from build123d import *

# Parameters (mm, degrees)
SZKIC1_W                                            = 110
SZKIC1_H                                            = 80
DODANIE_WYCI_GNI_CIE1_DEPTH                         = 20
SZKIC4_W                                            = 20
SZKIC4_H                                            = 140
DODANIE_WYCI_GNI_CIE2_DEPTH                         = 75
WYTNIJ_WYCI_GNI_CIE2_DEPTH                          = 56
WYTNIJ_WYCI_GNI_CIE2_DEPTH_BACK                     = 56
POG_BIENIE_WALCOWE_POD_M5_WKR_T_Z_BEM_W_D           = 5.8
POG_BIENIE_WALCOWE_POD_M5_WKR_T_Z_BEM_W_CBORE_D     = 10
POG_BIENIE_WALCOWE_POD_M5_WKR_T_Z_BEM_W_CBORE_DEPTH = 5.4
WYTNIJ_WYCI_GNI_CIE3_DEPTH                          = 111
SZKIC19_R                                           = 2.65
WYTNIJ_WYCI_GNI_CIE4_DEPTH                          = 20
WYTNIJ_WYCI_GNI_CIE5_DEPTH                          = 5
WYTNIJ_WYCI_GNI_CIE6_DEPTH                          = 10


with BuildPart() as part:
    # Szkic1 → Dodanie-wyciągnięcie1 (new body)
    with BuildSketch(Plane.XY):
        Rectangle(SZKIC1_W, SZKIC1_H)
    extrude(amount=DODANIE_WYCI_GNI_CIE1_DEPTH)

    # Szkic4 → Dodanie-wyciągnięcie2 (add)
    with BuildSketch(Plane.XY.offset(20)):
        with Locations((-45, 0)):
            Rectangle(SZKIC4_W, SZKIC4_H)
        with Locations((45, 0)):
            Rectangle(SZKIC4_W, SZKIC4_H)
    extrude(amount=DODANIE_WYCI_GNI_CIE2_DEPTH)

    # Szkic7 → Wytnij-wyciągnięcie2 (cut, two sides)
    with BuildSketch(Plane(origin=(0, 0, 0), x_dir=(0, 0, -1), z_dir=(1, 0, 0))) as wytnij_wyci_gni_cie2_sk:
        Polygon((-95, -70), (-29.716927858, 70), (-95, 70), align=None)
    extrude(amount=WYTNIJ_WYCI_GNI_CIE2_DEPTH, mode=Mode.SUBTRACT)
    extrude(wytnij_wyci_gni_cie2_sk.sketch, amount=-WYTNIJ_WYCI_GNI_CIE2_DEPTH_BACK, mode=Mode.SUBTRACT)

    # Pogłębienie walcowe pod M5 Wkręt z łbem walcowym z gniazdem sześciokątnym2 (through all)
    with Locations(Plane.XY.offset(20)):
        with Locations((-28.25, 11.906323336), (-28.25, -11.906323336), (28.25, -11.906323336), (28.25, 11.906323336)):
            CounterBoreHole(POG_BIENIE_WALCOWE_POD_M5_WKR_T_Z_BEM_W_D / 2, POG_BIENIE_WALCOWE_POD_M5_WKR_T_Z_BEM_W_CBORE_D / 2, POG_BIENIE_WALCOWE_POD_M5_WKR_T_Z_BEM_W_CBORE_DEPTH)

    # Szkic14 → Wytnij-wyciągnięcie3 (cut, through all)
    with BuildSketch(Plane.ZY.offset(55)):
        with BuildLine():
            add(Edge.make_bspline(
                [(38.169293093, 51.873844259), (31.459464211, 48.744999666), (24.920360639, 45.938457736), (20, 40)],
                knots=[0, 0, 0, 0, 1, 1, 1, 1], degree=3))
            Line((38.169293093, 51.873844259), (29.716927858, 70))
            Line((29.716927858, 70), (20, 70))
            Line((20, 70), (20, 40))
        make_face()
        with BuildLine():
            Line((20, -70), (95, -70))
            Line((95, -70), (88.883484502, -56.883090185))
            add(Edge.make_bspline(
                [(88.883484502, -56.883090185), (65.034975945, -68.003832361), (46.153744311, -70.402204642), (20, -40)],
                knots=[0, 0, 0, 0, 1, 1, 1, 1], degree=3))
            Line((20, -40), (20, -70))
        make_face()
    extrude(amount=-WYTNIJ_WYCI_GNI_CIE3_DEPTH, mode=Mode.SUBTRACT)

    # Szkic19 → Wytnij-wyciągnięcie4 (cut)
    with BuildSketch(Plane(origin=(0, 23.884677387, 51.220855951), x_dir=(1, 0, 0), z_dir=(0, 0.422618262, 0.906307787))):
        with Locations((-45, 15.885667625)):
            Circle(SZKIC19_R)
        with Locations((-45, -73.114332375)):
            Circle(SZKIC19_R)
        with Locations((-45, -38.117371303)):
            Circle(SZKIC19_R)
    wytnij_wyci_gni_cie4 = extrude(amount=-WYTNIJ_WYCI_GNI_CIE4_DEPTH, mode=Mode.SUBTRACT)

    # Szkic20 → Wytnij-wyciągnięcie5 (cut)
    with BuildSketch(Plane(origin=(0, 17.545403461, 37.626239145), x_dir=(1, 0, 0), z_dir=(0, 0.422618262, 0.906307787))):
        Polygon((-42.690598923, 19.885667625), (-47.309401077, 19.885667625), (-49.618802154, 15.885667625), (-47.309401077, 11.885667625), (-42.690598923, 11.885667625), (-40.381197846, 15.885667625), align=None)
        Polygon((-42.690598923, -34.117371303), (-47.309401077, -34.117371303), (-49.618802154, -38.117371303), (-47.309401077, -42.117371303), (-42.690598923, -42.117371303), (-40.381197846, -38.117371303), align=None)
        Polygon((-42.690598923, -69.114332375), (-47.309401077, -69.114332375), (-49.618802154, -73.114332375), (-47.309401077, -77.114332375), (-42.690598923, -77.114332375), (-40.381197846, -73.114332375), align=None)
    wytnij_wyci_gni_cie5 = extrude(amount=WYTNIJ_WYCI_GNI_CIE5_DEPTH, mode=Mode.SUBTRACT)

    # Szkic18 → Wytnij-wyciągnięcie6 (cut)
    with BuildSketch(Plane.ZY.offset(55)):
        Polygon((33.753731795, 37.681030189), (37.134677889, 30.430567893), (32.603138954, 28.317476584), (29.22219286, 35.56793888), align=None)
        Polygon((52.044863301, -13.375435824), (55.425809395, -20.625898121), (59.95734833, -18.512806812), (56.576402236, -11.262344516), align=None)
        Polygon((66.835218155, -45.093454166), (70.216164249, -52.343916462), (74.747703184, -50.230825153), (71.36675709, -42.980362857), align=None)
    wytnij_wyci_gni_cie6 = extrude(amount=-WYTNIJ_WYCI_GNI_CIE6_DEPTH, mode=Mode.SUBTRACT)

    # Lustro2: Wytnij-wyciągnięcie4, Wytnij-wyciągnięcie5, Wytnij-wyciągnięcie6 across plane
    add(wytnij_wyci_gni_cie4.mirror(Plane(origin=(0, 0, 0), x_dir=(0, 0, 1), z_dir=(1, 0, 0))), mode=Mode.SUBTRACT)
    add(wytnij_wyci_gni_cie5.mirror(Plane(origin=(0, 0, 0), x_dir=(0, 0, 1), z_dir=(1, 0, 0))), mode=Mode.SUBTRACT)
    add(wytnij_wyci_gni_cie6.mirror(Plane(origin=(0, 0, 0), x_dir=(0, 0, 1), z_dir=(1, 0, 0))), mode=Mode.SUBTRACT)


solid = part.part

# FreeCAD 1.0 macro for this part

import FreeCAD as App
import Part
import Sketcher
from FreeCAD import Vector
Q = App.Units.Quantity


def add_polygon(sketch, points):
    """Adds a closed chain of lines whose ends are joined by coincident constraints."""
    first, n = sketch.GeometryCount, len(points)
    for a, b in zip(points, points[1:] + points[:1]):
        sketch.addGeometry(Part.LineSegment(App.Vector(*a, 0), App.Vector(*b, 0)), False)
    for i in range(n):
        sketch.addConstraint(Sketcher.Constraint("Coincident", first + i, 2, first + (i + 1) % n, 1))

doc = App.newDocument("Part")
params = doc.addObject("Spreadsheet::Sheet", "Params")
for row, (alias, value) in enumerate([
    ("sketch1_width", "110 mm"),
    ("sketch1_height", "80 mm"),
    ("pad1_length", "20 mm"),
    ("sketch2_width", "20 mm"),
    ("sketch2_height", "140 mm"),
    ("pad2_length", "75 mm"),
    ("sketch3_width", "140 mm"),
    ("sketch4_diameter", "5.8 mm"),
    ("hole_diameter", "5.8 mm"),
    ("hole_cbore_diameter", "10 mm"),
    ("hole_cbore_depth", "5.4 mm"),
    ("sketch5_width", "30 mm"),
    ("sketch5_width2", "30 mm"),
    ("sketch5_height", "75 mm"),
    ("sketch5_length", "20 mm"),
    ("sketch6_diameter", "5.3 mm"),
    ("pocket3_length", "20 mm"),
    ("pocket4_length", "5 mm"),
    ("sketch8_length", "8 mm"),
    ("sketch8_length2", "5 mm"),
    ("pocket5_length", "10 mm"),
], start=1):
    params.set(f"A{row}", alias)
    params.set(f"B{row}", "=" + value)
    params.setAlias(f"B{row}", alias)

body = doc.addObject("PartDesign::Body", "Body")

sketch1 = doc.addObject("Sketcher::SketchObject", "Sketch")
body.addObject(sketch1)
sketch1.AttachmentSupport = (doc.XY_Plane, [""])
sketch1.MapMode = "FlatFace"
add_polygon(sketch1, [(-55, 40), (-55, -40), (55, -40), (55, 40)])
sketch1.addConstraint(Sketcher.Constraint("Vertical", 0))
sketch1.addConstraint(Sketcher.Constraint("Horizontal", 1))
sketch1.addConstraint(Sketcher.Constraint("Vertical", 2))
sketch1.addConstraint(Sketcher.Constraint("Horizontal", 3))
sketch1.addConstraint(Sketcher.Constraint("Symmetric", 0, 2, 2, 2, -1, 1))
sketch1.addConstraint(Sketcher.Constraint("DistanceX", 1, 1, 1, 2, 110.0))
sketch1.addConstraint(Sketcher.Constraint("DistanceY", 0, 2, 0, 1, 80.0))
sketch1.setExpression("Constraints[9]", "Params.sketch1_width")
sketch1.setExpression("Constraints[10]", "Params.sketch1_height")
pad1 = doc.addObject("PartDesign::Pad", "Pad")
body.addObject(pad1)
pad1.Profile = sketch1
pad1.setExpression("Length", "Params.pad1_length")

sketch2 = doc.addObject("Sketcher::SketchObject", "Sketch001")
body.addObject(sketch2)
sketch2.AttachmentSupport = (doc.XY_Plane, [""])
sketch2.MapMode = "FlatFace"
sketch2.AttachmentOffset = App.Placement(Vector(0, 0, 20), App.Rotation())
add_polygon(sketch2, [(-55, 70), (-55, -70), (-35, -70), (-35, 70)])
add_polygon(sketch2, [(35, 70), (35, -70), (55, -70), (55, 70)])
sketch2.addConstraint(Sketcher.Constraint("Vertical", 0))
sketch2.addConstraint(Sketcher.Constraint("Horizontal", 1))
sketch2.addConstraint(Sketcher.Constraint("Vertical", 2))
sketch2.addConstraint(Sketcher.Constraint("Horizontal", 3))
sketch2.addConstraint(Sketcher.Constraint("Vertical", 4))
sketch2.addConstraint(Sketcher.Constraint("Horizontal", 5))
sketch2.addConstraint(Sketcher.Constraint("Vertical", 6))
sketch2.addConstraint(Sketcher.Constraint("Horizontal", 7))
sketch2.addConstraint(Sketcher.Constraint("Symmetric", 2, 2, 4, 2, -1, 1))
sketch2.addConstraint(Sketcher.Constraint("Symmetric", 0, 2, 6, 2, -1, 1))
sketch2.addConstraint(Sketcher.Constraint("Horizontal", 1, 2, 4, 2))
sketch2.addConstraint(Sketcher.Constraint("DistanceX", 1, 1, 1, 2, 20.0))
sketch2.addConstraint(Sketcher.Constraint("DistanceY", 0, 2, 0, 1, 140.0))
sketch2.addConstraint(Sketcher.Constraint("DistanceX", 0, 2, -1, 1, 55.0))
sketch2.setExpression("Constraints[19]", "Params.sketch2_width")
sketch2.setExpression("Constraints[20]", "Params.sketch2_height")
pad2 = doc.addObject("PartDesign::Pad", "Pad001")
body.addObject(pad2)
pad2.Profile = sketch2
pad2.setExpression("Length", "Params.pad2_length")

sketch3 = doc.addObject("Sketcher::SketchObject", "Sketch002")
body.addObject(sketch3)
sketch3.AttachmentSupport = (doc.YZ_Plane, [""])
sketch3.MapMode = "FlatFace"
add_polygon(sketch3, [(-70, 95), (70, 30), (70, 95)])
sketch3.addConstraint(Sketcher.Constraint("Vertical", 1))
sketch3.addConstraint(Sketcher.Constraint("Horizontal", 2))
sketch3.addConstraint(Sketcher.Constraint("DistanceX", 2, 2, 2, 1, 140.0))
sketch3.addConstraint(Sketcher.Constraint("Angle", 0, Q("-25 deg")))
sketch3.addConstraint(Sketcher.Constraint("DistanceX", -1, 1, 0, 2, 70.0))
sketch3.addConstraint(Sketcher.Constraint("DistanceY", -1, 1, 1, 2, 95.0))
sketch3.setExpression("Constraints[5]", "Params.sketch3_width")
pocket1 = doc.addObject("PartDesign::Pocket", "Pocket")
body.addObject(pocket1)
pocket1.Profile = sketch3
pocket1.Type = "ThroughAll"
pocket1.Midplane = True

sketch4 = doc.addObject("Sketcher::SketchObject", "Sketch003")
body.addObject(sketch4)
sketch4.AttachmentSupport = (doc.XY_Plane, [""])
sketch4.MapMode = "FlatFace"
sketch4.AttachmentOffset = App.Placement(Vector(0, 0, 20), App.Rotation())
sketch4.addGeometry(Part.Circle(Vector(-28.2, 11.9, 0), Vector(0, 0, 1), 2.9), False)
sketch4.addGeometry(Part.Circle(Vector(-28.2, -11.9, 0), Vector(0, 0, 1), 2.9), False)
sketch4.addGeometry(Part.Circle(Vector(28.2, -11.9, 0), Vector(0, 0, 1), 2.9), False)
sketch4.addGeometry(Part.Circle(Vector(28.2, 11.9, 0), Vector(0, 0, 1), 2.9), False)
sketch4.addConstraint(Sketcher.Constraint("Equal", 0, 1))
sketch4.addConstraint(Sketcher.Constraint("Equal", 1, 2))
sketch4.addConstraint(Sketcher.Constraint("Equal", 2, 3))
sketch4.addConstraint(Sketcher.Constraint("Symmetric", 0, 3, 2, 3, -1, 1))
sketch4.addConstraint(Sketcher.Constraint("Symmetric", 1, 3, 3, 3, -1, 1))
sketch4.addConstraint(Sketcher.Constraint("Symmetric", 1, 3, 2, 3, -2))
sketch4.addConstraint(Sketcher.Constraint("Diameter", 0, 5.8))
sketch4.addConstraint(Sketcher.Constraint("DistanceX", 1, 3, 2, 3, 56.5))
sketch4.addConstraint(Sketcher.Constraint("DistanceY", -1, 1, 0, 3, 11.906323))
sketch4.setExpression("Constraints[6]", "Params.sketch4_diameter")
doc.recompute()
hole = doc.addObject("PartDesign::Hole", "Hole")
body.addObject(hole)
hole.Profile = sketch4
hole.ThreadType = "None"
hole.setExpression("Diameter", "Params.hole_diameter")
hole.DepthType = "ThroughAll"
hole.HoleCutType = "Counterbore"
hole.setExpression("HoleCutDiameter", "Params.hole_cbore_diameter")
hole.setExpression("HoleCutDepth", "Params.hole_cbore_depth")

sketch5 = doc.addObject("Sketcher::SketchObject", "Sketch004")
body.addObject(sketch5)
sketch5.AttachmentSupport = (doc.YZ_Plane, [""])
sketch5.MapMode = "FlatFace"
sketch5.AttachmentOffset = App.Placement(Vector(0, 0, -55), App.Rotation())
sketch5.addGeometry(Part.BSplineCurve([Vector(51.873844, 38.169293, 0), Vector(48.745, 31.459464, 0), Vector(45.938458, 24.920361, 0), Vector(40, 20, 0)], [4, 4], [0, 1], False, 3, [1, 1, 1, 1], False), False)
sketch5.addGeometry(Part.LineSegment(Vector(51.873844, 38.169293, 0), Vector(70, 29.716928, 0)), False)
sketch5.addGeometry(Part.LineSegment(Vector(70, 29.716928, 0), Vector(70, 20, 0)), False)
sketch5.addGeometry(Part.LineSegment(Vector(70, 20, 0), Vector(40, 20, 0)), False)
sketch5.addGeometry(Part.LineSegment(Vector(-70, 20, 0), Vector(-70, 95, 0)), False)
sketch5.addGeometry(Part.LineSegment(Vector(-70, 95, 0), Vector(-56.88309, 88.883485, 0)), False)
sketch5.addGeometry(Part.BSplineCurve([Vector(-56.88309, 88.883485, 0), Vector(-68.003832, 65.034976, 0), Vector(-70.402205, 46.153744, 0), Vector(-40, 20, 0)], [4, 4], [0, 1], False, 3, [1, 1, 1, 1], False), False)
sketch5.addGeometry(Part.LineSegment(Vector(-40, 20, 0), Vector(-70, 20, 0)), False)
sketch5.addConstraint(Sketcher.Constraint("Block", 0))
sketch5.addConstraint(Sketcher.Constraint("Block", 6))
sketch5.addConstraint(Sketcher.Constraint("Coincident", 0, 1, 1, 1))
sketch5.addConstraint(Sketcher.Constraint("Coincident", 1, 2, 2, 1))
sketch5.addConstraint(Sketcher.Constraint("Coincident", 2, 2, 3, 1))
sketch5.addConstraint(Sketcher.Constraint("Coincident", 3, 2, 0, 2))
sketch5.addConstraint(Sketcher.Constraint("Coincident", 4, 2, 5, 1))
sketch5.addConstraint(Sketcher.Constraint("Coincident", 5, 2, 6, 1))
sketch5.addConstraint(Sketcher.Constraint("Coincident", 6, 2, 7, 1))
sketch5.addConstraint(Sketcher.Constraint("Coincident", 7, 2, 4, 1))
sketch5.addConstraint(Sketcher.Constraint("Vertical", 2))
sketch5.addConstraint(Sketcher.Constraint("Horizontal", 3))
sketch5.addConstraint(Sketcher.Constraint("Vertical", 4))
sketch5.addConstraint(Sketcher.Constraint("Horizontal", 7))
sketch5.addConstraint(Sketcher.Constraint("DistanceX", 3, 2, 3, 1, 30.0))
sketch5.addConstraint(Sketcher.Constraint("DistanceX", 7, 2, 7, 1, 30.0))
sketch5.addConstraint(Sketcher.Constraint("DistanceY", 4, 1, 4, 2, 75.0))
sketch5.addConstraint(Sketcher.Constraint("Distance", 1, 20.0))
sketch5.setExpression("Constraints[14]", "Params.sketch5_width")
sketch5.setExpression("Constraints[15]", "Params.sketch5_width2")
sketch5.setExpression("Constraints[16]", "Params.sketch5_height")
sketch5.setExpression("Constraints[17]", "Params.sketch5_length")
pocket2 = doc.addObject("PartDesign::Pocket", "Pocket001")
body.addObject(pocket2)
pocket2.Profile = sketch5
pocket2.Type = "ThroughAll"
pocket2.Reversed = True

sketch6 = doc.addObject("Sketcher::SketchObject", "Sketch005")
body.addObject(sketch6)
sketch6.Placement = App.Placement(Vector(0, 23.884677, 51.220856), App.Rotation(Vector(1, 0, 0), Vector(0, 0.906307787, -0.422618262), Vector(0, 0.422618262, 0.906307787), "ZXY"))
sketch6.addGeometry(Part.Circle(Vector(-45, 15.9, 0), Vector(0, 0, 1), 2.6), False)
sketch6.addGeometry(Part.Circle(Vector(-45, -73.1, 0), Vector(0, 0, 1), 2.6), False)
sketch6.addGeometry(Part.Circle(Vector(-45, -38.1, 0), Vector(0, 0, 1), 2.6), False)
sketch6.addConstraint(Sketcher.Constraint("Equal", 0, 1))
sketch6.addConstraint(Sketcher.Constraint("Equal", 1, 2))
sketch6.addConstraint(Sketcher.Constraint("Vertical", 0, 3, 1, 3))
sketch6.addConstraint(Sketcher.Constraint("Vertical", 1, 3, 2, 3))
sketch6.addConstraint(Sketcher.Constraint("Diameter", 0, 5.3))
sketch6.addConstraint(Sketcher.Constraint("DistanceX", 0, 3, -1, 1, 45.0))
sketch6.addConstraint(Sketcher.Constraint("DistanceY", 1, 3, 0, 3, 89.0))
sketch6.addConstraint(Sketcher.Constraint("DistanceY", 2, 3, -1, 1, 38.117371))
sketch6.addConstraint(Sketcher.Constraint("DistanceY", 1, 3, 2, 3, 34.996961))
sketch6.setExpression("Constraints[4]", "Params.sketch6_diameter")
pocket3 = doc.addObject("PartDesign::Pocket", "Pocket002")
body.addObject(pocket3)
pocket3.Profile = sketch6
pocket3.setExpression("Length", "Params.pocket3_length")

sketch7 = doc.addObject("Sketcher::SketchObject", "Sketch006")
body.addObject(sketch7)
sketch7.Placement = App.Placement(Vector(0, 17.545403, 37.626239), App.Rotation(Vector(1, 0, 0), Vector(0, 0.906307787, -0.422618262), Vector(0, 0.422618262, 0.906307787), "ZXY"))
add_polygon(sketch7, [(-42.7, 19.9), (-47.3, 19.9), (-49.6, 15.9), (-47.3, 11.9), (-42.7, 11.9), (-40.4, 15.9)])
add_polygon(sketch7, [(-42.7, -34.1), (-47.3, -34.1), (-49.6, -38.1), (-47.3, -42.1), (-42.7, -42.1), (-40.4, -38.1)])
add_polygon(sketch7, [(-42.7, -69.1), (-47.3, -69.1), (-49.6, -73.1), (-47.3, -77.1), (-42.7, -77.1), (-40.4, -73.1)])
sketch7.addConstraint(Sketcher.Constraint("Horizontal", 0))
sketch7.addConstraint(Sketcher.Constraint("Horizontal", 3))
sketch7.addConstraint(Sketcher.Constraint("Horizontal", 6))
sketch7.addConstraint(Sketcher.Constraint("Horizontal", 9))
sketch7.addConstraint(Sketcher.Constraint("Horizontal", 12))
sketch7.addConstraint(Sketcher.Constraint("Horizontal", 15))
sketch7.addConstraint(Sketcher.Constraint("Parallel", 1, 4))
sketch7.addConstraint(Sketcher.Constraint("Parallel", 2, 5))
sketch7.addConstraint(Sketcher.Constraint("Parallel", 4, 7))
sketch7.addConstraint(Sketcher.Constraint("Parallel", 5, 8))
sketch7.addConstraint(Sketcher.Constraint("Parallel", 7, 10))
sketch7.addConstraint(Sketcher.Constraint("Parallel", 8, 11))
sketch7.addConstraint(Sketcher.Constraint("Parallel", 10, 13))
sketch7.addConstraint(Sketcher.Constraint("Parallel", 11, 14))
sketch7.addConstraint(Sketcher.Constraint("Parallel", 13, 16))
sketch7.addConstraint(Sketcher.Constraint("Parallel", 14, 17))
sketch7.addConstraint(Sketcher.Constraint("Horizontal", 1, 2, 4, 2))
sketch7.addConstraint(Sketcher.Constraint("Horizontal", 7, 2, 10, 2))
sketch7.addConstraint(Sketcher.Constraint("Horizontal", 13, 2, 16, 2))
sketch7.addConstraint(Sketcher.Constraint("Vertical", 0, 2, 2, 2))
sketch7.addConstraint(Sketcher.Constraint("Vertical", 3, 2, 5, 2))
sketch7.addConstraint(Sketcher.Constraint("Vertical", 2, 2, 6, 2))
sketch7.addConstraint(Sketcher.Constraint("Vertical", 1, 2, 7, 2))
sketch7.addConstraint(Sketcher.Constraint("Vertical", 6, 2, 8, 2))
sketch7.addConstraint(Sketcher.Constraint("Vertical", 5, 2, 9, 2))
sketch7.addConstraint(Sketcher.Constraint("Vertical", 8, 2, 12, 2))
sketch7.addConstraint(Sketcher.Constraint("Vertical", 7, 2, 13, 2))
sketch7.addConstraint(Sketcher.Constraint("Vertical", 12, 2, 14, 2))
sketch7.addConstraint(Sketcher.Constraint("Vertical", 11, 2, 15, 2))
sketch7.addConstraint(Sketcher.Constraint("Angle", 1, Q("-120 deg")))
sketch7.addConstraint(Sketcher.Constraint("DistanceY", 1, 2, 0, 2, 4.0))
sketch7.addConstraint(Sketcher.Constraint("DistanceX", 0, 2, -1, 1, 47.309401))
sketch7.addConstraint(Sketcher.Constraint("DistanceX", 3, 2, -1, 1, 42.690599))
sketch7.addConstraint(Sketcher.Constraint("DistanceY", 6, 2, -1, 1, 34.117371))
sketch7.addConstraint(Sketcher.Constraint("DistanceY", 6, 2, 2, 2, 46.003039))
sketch7.addConstraint(Sketcher.Constraint("DistanceY", 12, 2, 8, 2, 26.996961))
pocket4 = doc.addObject("PartDesign::Pocket", "Pocket003")
body.addObject(pocket4)
pocket4.Profile = sketch7
pocket4.setExpression("Length", "Params.pocket4_length")
pocket4.Reversed = True

sketch8 = doc.addObject("Sketcher::SketchObject", "Sketch007")
body.addObject(sketch8)
sketch8.AttachmentSupport = (doc.YZ_Plane, [""])
sketch8.MapMode = "FlatFace"
sketch8.AttachmentOffset = App.Placement(Vector(0, 0, -55), App.Rotation())
add_polygon(sketch8, [(30.4, 37.1), (37.7, 33.8), (35.6, 29.2), (28.3, 32.6)])
add_polygon(sketch8, [(-13.4, 52), (-20.6, 55.4), (-18.5, 60), (-11.3, 56.6)])
add_polygon(sketch8, [(-45.1, 66.8), (-52.3, 70.2), (-50.2, 74.7), (-43, 71.4)])
sketch8.addConstraint(Sketcher.Constraint("Perpendicular", 0, 1))
sketch8.addConstraint(Sketcher.Constraint("Perpendicular", 1, 2))
sketch8.addConstraint(Sketcher.Constraint("Perpendicular", 2, 3))
sketch8.addConstraint(Sketcher.Constraint("Perpendicular", 3, 4))
sketch8.addConstraint(Sketcher.Constraint("Perpendicular", 4, 5))
sketch8.addConstraint(Sketcher.Constraint("Perpendicular", 5, 6))
sketch8.addConstraint(Sketcher.Constraint("Perpendicular", 6, 7))
sketch8.addConstraint(Sketcher.Constraint("Perpendicular", 7, 8))
sketch8.addConstraint(Sketcher.Constraint("Perpendicular", 8, 9))
sketch8.addConstraint(Sketcher.Constraint("Perpendicular", 9, 10))
sketch8.addConstraint(Sketcher.Constraint("Perpendicular", 10, 11))
sketch8.addConstraint(Sketcher.Constraint("Equal", 2, 4))
sketch8.addConstraint(Sketcher.Constraint("Equal", 3, 5))
sketch8.addConstraint(Sketcher.Constraint("Equal", 6, 8))
sketch8.addConstraint(Sketcher.Constraint("Equal", 7, 9))
sketch8.addConstraint(Sketcher.Constraint("Angle", 0, Q("-25 deg")))
sketch8.addConstraint(Sketcher.Constraint("Distance", 0, 8.0))
sketch8.addConstraint(Sketcher.Constraint("Distance", 1, 5.0))
sketch8.addConstraint(Sketcher.Constraint("DistanceX", 4, 2, -1, 1, 20.625898))
sketch8.addConstraint(Sketcher.Constraint("DistanceY", 7, 2, 8, 2, 18.171301))
sketch8.addConstraint(Sketcher.Constraint("DistanceX", -1, 1, 0, 2, 37.68103))
sketch8.addConstraint(Sketcher.Constraint("DistanceY", -1, 1, 0, 2, 33.753732))
sketch8.addConstraint(Sketcher.Constraint("DistanceY", -1, 1, 4, 2, 55.425809))
sketch8.addConstraint(Sketcher.Constraint("DistanceX", 8, 2, 4, 2, 31.718018))
sketch8.setExpression("Constraints[28]", "Params.sketch8_length")
sketch8.setExpression("Constraints[29]", "Params.sketch8_length2")
pocket5 = doc.addObject("PartDesign::Pocket", "Pocket004")
body.addObject(pocket5)
pocket5.Profile = sketch8
pocket5.setExpression("Length", "Params.pocket5_length")
pocket5.Reversed = True
doc.recompute()

mirrored = doc.addObject("PartDesign::Mirrored", "Mirrored")
body.addObject(mirrored)
mirrored.Originals = [pocket3, pocket4, pocket5]
mirrored.MirrorPlane = (doc.YZ_Plane, [""])
body.Tip = mirrored

doc.recompute()
